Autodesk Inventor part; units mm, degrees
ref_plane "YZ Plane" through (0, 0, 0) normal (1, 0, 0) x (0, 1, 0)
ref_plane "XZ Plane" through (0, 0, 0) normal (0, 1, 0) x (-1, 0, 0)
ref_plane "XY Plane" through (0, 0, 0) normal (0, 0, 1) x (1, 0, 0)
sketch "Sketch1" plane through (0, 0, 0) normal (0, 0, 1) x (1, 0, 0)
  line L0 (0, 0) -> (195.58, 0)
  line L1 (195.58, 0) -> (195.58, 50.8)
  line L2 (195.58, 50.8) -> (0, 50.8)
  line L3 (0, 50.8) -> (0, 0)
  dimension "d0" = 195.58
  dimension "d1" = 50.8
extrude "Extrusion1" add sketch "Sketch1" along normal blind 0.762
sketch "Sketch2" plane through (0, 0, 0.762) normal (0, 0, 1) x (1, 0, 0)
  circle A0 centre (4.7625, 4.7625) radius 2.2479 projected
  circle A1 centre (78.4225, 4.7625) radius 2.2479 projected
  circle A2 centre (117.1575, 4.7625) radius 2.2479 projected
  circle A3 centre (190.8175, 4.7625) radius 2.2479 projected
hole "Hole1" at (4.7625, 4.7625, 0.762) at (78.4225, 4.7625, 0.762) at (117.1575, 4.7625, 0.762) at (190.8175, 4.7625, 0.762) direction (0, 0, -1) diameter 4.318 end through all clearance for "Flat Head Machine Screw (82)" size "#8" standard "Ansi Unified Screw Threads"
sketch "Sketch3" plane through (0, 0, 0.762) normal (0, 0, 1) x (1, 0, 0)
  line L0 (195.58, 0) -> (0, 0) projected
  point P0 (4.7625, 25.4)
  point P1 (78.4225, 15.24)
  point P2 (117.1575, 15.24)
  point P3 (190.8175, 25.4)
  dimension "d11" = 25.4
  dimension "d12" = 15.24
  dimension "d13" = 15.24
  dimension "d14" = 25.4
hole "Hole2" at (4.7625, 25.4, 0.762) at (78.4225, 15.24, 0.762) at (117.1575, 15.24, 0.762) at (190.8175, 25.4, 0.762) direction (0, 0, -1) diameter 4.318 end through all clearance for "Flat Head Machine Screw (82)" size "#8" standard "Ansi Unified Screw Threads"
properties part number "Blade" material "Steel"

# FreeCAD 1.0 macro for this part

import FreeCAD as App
import Part
import Sketcher

V = App.Vector
Q = App.Units.Quantity

doc = App.newDocument("Part")
body = doc.addObject("PartDesign::Body", "Body")

sketch1 = body.newObject("Sketcher::SketchObject", "Sketch")
sketch1.AttachmentSupport = (doc.getObject("XY_Plane"), [""])
sketch1.MapMode = "FlatFace"
sketch1.addGeometry(Part.LineSegment(V(0, 51, 0), V(0, 0, 0)), False)
sketch1.addGeometry(Part.LineSegment(V(0, 0, 0), V(196, 0, 0)), False)
sketch1.addGeometry(Part.LineSegment(V(196, 0, 0), V(196, 51, 0)), False)
sketch1.addGeometry(Part.LineSegment(V(196, 51, 0), V(0, 51, 0)), False)
sketch1.addConstraint(Sketcher.Constraint("Coincident", 0, 2, 1, 1))
sketch1.addConstraint(Sketcher.Constraint("Coincident", 1, 2, 2, 1))
sketch1.addConstraint(Sketcher.Constraint("Coincident", 2, 2, 3, 1))
sketch1.addConstraint(Sketcher.Constraint("Coincident", 3, 2, 0, 1))
sketch1.addConstraint(Sketcher.Constraint("Vertical", 0))
sketch1.addConstraint(Sketcher.Constraint("Horizontal", 1))
sketch1.addConstraint(Sketcher.Constraint("Vertical", 2))
sketch1.addConstraint(Sketcher.Constraint("Horizontal", 3))
sketch1.addConstraint(Sketcher.Constraint("Coincident", 0, 2, -1, 1))
sketch1.addConstraint(Sketcher.Constraint("DistanceY", 0, 2, 0, 1, Q("2 in")))
sketch1.addConstraint(Sketcher.Constraint("DistanceX", 1, 1, 1, 2, Q("7.7 in")))
pad1 = body.newObject("PartDesign::Pad", "Pad")
pad1.Profile = sketch1
pad1.Length = Q("0.03 in")

sketch2 = body.newObject("Sketcher::SketchObject", "Sketch001")
sketch2.AttachmentSupport = (doc.getObject("XY_Plane"), [""])
sketch2.MapMode = "FlatFace"
sketch2.AttachmentOffset = App.Placement(V(0, 0, 0.03 * 25.4), App.Rotation())
sketch2.addGeometry(Part.Circle(V(4.8, 4.8, 0), V(0, 0, 1), 2.2), False)
sketch2.addGeometry(Part.Circle(V(78.4, 4.8, 0), V(0, 0, 1), 2.2), False)
sketch2.addGeometry(Part.Circle(V(117.2, 4.8, 0), V(0, 0, 1), 2.2), False)
sketch2.addGeometry(Part.Circle(V(190.8, 4.8, 0), V(0, 0, 1), 2.2), False)
sketch2.addConstraint(Sketcher.Constraint("Equal", 0, 1))
sketch2.addConstraint(Sketcher.Constraint("Equal", 1, 2))
sketch2.addConstraint(Sketcher.Constraint("Equal", 2, 3))
sketch2.addConstraint(Sketcher.Constraint("Horizontal", 0, 3, 1, 3))
sketch2.addConstraint(Sketcher.Constraint("Horizontal", 1, 3, 2, 3))
sketch2.addConstraint(Sketcher.Constraint("Horizontal", 2, 3, 3, 3))
sketch2.addConstraint(Sketcher.Constraint("Diameter", 0, Q("0.17 in")))
sketch2.addConstraint(Sketcher.Constraint("DistanceX", 0, 3, 1, 3, Q("2.9 in")))
sketch2.addConstraint(Sketcher.Constraint("DistanceX", 2, 3, 3, 3, Q("2.9 in")))
sketch2.addConstraint(Sketcher.Constraint("DistanceX", -1, 1, 0, 3, Q("0.1875 in")))
sketch2.addConstraint(Sketcher.Constraint("DistanceY", -1, 1, 0, 3, Q("0.1875 in")))
sketch2.addConstraint(Sketcher.Constraint("DistanceX", 1, 3, 2, 3, Q("1.525 in")))
doc.recompute()
hole = body.newObject("PartDesign::Hole", "Hole")
hole.Profile = sketch2
hole.ThreadType = "None"
hole.Diameter = Q("0.17 in")
hole.DepthType = "ThroughAll"

sketch3 = body.newObject("Sketcher::SketchObject", "Sketch002")
sketch3.AttachmentSupport = (doc.getObject("XY_Plane"), [""])
sketch3.MapMode = "FlatFace"
sketch3.AttachmentOffset = App.Placement(V(0, 0, 0.03 * 25.4), App.Rotation())
sketch3.addGeometry(Part.Circle(V(4.8, 25.4, 0), V(0, 0, 1), 2.2), False)
sketch3.addGeometry(Part.Circle(V(78.4, 15.2, 0), V(0, 0, 1), 2.2), False)
sketch3.addGeometry(Part.Circle(V(117.2, 15.2, 0), V(0, 0, 1), 2.2), False)
sketch3.addGeometry(Part.Circle(V(190.8, 25.4, 0), V(0, 0, 1), 2.2), False)
sketch3.addConstraint(Sketcher.Constraint("Equal", 0, 1))
sketch3.addConstraint(Sketcher.Constraint("Equal", 1, 2))
sketch3.addConstraint(Sketcher.Constraint("Equal", 2, 3))
sketch3.addConstraint(Sketcher.Constraint("Horizontal", 1, 3, 2, 3))
sketch3.addConstraint(Sketcher.Constraint("Horizontal", 0, 3, 3, 3))
sketch3.addConstraint(Sketcher.Constraint("Diameter", 0, Q("0.17 in")))
sketch3.addConstraint(Sketcher.Constraint("DistanceY", -1, 1, 0, 3, Q("1 in")))
sketch3.addConstraint(Sketcher.Constraint("DistanceY", -1, 1, 1, 3, Q("0.6 in")))
sketch3.addConstraint(Sketcher.Constraint("DistanceX", 0, 3, 1, 3, Q("2.9 in")))
sketch3.addConstraint(Sketcher.Constraint("DistanceX", 2, 3, 3, 3, Q("2.9 in")))
sketch3.addConstraint(Sketcher.Constraint("DistanceX", -1, 1, 0, 3, Q("0.1875 in")))
sketch3.addConstraint(Sketcher.Constraint("DistanceX", 1, 3, 2, 3, Q("1.525 in")))
doc.recompute()
hole2 = body.newObject("PartDesign::Hole", "Hole001")
hole2.Profile = sketch3
hole2.ThreadType = "None"
hole2.Diameter = Q("0.17 in")
hole2.DepthType = "ThroughAll"

doc.recompute()
